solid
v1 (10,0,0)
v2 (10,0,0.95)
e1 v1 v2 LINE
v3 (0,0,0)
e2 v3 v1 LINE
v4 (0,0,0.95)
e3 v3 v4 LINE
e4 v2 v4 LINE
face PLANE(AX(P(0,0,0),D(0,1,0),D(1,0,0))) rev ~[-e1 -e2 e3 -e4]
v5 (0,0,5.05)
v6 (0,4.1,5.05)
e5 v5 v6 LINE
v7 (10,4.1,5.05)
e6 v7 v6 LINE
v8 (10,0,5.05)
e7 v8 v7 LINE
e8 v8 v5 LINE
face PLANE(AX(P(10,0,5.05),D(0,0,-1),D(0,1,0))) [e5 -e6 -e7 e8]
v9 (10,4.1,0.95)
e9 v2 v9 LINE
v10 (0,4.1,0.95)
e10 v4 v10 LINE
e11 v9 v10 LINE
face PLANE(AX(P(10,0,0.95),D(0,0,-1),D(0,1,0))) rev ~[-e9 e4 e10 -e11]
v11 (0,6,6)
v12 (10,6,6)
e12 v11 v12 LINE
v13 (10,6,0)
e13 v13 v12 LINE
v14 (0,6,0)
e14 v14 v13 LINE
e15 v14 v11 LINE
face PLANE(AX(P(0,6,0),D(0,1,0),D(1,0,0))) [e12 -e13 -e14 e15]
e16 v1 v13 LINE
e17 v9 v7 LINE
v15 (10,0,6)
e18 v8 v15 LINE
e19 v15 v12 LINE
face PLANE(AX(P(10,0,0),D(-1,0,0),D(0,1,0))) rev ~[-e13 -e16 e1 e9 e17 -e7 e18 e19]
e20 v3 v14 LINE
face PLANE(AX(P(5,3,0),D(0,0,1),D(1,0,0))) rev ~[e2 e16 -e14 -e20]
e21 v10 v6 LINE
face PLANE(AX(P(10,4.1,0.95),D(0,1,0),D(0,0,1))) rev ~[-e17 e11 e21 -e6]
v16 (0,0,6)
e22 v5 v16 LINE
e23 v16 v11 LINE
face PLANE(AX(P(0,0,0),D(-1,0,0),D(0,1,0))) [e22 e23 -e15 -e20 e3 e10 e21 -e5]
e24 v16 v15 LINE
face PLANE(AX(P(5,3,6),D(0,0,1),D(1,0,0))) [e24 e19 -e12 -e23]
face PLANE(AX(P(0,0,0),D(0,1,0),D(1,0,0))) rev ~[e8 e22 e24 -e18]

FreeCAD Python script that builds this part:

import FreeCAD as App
import Part
import Sketcher


def add_polygon(sketch, points):
    """Adds a closed chain of lines whose ends are joined by coincident constraints."""
    first, n = sketch.GeometryCount, len(points)
    for a, b in zip(points, points[1:] + points[:1]):
        sketch.addGeometry(Part.LineSegment(App.Vector(*a, 0), App.Vector(*b, 0)), False)
    for i in range(n):
        sketch.addConstraint(Sketcher.Constraint("Coincident", first + i, 2, first + (i + 1) % n, 1))

doc = App.newDocument("Part")
body = doc.addObject("PartDesign::Body", "Body")

# Sketch on XY plane
sketch1 = body.newObject("Sketcher::SketchObject", "Sketch")
sketch1.AttachmentSupport = (doc.getObject("XY_Plane"), [""])
sketch1.MapMode = "FlatFace"
add_polygon(sketch1, [(0, 6), (0, 0), (10, 0), (10, 6)])  # lines 0-3
sketch1.addConstraint(Sketcher.Constraint("Vertical", 0))
sketch1.addConstraint(Sketcher.Constraint("Horizontal", 1))
sketch1.addConstraint(Sketcher.Constraint("Vertical", 2))
sketch1.addConstraint(Sketcher.Constraint("Horizontal", 3))
sketch1.addConstraint(Sketcher.Constraint("Coincident", 0, 2, -1, 1))
sketch1.addConstraint(Sketcher.Constraint("DistanceX", 1, 1, 1, 2, 10.0))
sketch1.addConstraint(Sketcher.Constraint("DistanceY", 0, 2, 0, 1, 6.0))
pad1 = body.newObject("PartDesign::Pad", "Pad")
pad1.Profile = sketch1
pad1.Length = 6

# Sketch on YZ plane
sketch2 = body.newObject("Sketcher::SketchObject", "Sketch001")
sketch2.AttachmentSupport = (doc.getObject("YZ_Plane"), [""])
sketch2.MapMode = "FlatFace"
sketch2.AttachmentOffset = App.Placement(App.Vector(0, 0, 10), App.Rotation())
add_polygon(sketch2, [(0, 5), (0, 0.9), (4.1, 0.9), (4.1, 5)])  # lines 0-3
sketch2.addConstraint(Sketcher.Constraint("Vertical", 0))
sketch2.addConstraint(Sketcher.Constraint("Horizontal", 1))
sketch2.addConstraint(Sketcher.Constraint("Vertical", 2))
sketch2.addConstraint(Sketcher.Constraint("Horizontal", 3))
sketch2.addConstraint(Sketcher.Constraint("PointOnObject", 0, 2, -2))
sketch2.addConstraint(Sketcher.Constraint("Equal", 3, 0))
sketch2.addConstraint(Sketcher.Constraint("DistanceX", 1, 1, 1, 2, 4.1))
sketch2.addConstraint(Sketcher.Constraint("DistanceY", -1, 1, 0, 2, 0.95))
pocket1 = body.newObject("PartDesign::Pocket", "Pocket")
pocket1.Profile = sketch2
pocket1.Type = "ThroughAll"

doc.recompute()
